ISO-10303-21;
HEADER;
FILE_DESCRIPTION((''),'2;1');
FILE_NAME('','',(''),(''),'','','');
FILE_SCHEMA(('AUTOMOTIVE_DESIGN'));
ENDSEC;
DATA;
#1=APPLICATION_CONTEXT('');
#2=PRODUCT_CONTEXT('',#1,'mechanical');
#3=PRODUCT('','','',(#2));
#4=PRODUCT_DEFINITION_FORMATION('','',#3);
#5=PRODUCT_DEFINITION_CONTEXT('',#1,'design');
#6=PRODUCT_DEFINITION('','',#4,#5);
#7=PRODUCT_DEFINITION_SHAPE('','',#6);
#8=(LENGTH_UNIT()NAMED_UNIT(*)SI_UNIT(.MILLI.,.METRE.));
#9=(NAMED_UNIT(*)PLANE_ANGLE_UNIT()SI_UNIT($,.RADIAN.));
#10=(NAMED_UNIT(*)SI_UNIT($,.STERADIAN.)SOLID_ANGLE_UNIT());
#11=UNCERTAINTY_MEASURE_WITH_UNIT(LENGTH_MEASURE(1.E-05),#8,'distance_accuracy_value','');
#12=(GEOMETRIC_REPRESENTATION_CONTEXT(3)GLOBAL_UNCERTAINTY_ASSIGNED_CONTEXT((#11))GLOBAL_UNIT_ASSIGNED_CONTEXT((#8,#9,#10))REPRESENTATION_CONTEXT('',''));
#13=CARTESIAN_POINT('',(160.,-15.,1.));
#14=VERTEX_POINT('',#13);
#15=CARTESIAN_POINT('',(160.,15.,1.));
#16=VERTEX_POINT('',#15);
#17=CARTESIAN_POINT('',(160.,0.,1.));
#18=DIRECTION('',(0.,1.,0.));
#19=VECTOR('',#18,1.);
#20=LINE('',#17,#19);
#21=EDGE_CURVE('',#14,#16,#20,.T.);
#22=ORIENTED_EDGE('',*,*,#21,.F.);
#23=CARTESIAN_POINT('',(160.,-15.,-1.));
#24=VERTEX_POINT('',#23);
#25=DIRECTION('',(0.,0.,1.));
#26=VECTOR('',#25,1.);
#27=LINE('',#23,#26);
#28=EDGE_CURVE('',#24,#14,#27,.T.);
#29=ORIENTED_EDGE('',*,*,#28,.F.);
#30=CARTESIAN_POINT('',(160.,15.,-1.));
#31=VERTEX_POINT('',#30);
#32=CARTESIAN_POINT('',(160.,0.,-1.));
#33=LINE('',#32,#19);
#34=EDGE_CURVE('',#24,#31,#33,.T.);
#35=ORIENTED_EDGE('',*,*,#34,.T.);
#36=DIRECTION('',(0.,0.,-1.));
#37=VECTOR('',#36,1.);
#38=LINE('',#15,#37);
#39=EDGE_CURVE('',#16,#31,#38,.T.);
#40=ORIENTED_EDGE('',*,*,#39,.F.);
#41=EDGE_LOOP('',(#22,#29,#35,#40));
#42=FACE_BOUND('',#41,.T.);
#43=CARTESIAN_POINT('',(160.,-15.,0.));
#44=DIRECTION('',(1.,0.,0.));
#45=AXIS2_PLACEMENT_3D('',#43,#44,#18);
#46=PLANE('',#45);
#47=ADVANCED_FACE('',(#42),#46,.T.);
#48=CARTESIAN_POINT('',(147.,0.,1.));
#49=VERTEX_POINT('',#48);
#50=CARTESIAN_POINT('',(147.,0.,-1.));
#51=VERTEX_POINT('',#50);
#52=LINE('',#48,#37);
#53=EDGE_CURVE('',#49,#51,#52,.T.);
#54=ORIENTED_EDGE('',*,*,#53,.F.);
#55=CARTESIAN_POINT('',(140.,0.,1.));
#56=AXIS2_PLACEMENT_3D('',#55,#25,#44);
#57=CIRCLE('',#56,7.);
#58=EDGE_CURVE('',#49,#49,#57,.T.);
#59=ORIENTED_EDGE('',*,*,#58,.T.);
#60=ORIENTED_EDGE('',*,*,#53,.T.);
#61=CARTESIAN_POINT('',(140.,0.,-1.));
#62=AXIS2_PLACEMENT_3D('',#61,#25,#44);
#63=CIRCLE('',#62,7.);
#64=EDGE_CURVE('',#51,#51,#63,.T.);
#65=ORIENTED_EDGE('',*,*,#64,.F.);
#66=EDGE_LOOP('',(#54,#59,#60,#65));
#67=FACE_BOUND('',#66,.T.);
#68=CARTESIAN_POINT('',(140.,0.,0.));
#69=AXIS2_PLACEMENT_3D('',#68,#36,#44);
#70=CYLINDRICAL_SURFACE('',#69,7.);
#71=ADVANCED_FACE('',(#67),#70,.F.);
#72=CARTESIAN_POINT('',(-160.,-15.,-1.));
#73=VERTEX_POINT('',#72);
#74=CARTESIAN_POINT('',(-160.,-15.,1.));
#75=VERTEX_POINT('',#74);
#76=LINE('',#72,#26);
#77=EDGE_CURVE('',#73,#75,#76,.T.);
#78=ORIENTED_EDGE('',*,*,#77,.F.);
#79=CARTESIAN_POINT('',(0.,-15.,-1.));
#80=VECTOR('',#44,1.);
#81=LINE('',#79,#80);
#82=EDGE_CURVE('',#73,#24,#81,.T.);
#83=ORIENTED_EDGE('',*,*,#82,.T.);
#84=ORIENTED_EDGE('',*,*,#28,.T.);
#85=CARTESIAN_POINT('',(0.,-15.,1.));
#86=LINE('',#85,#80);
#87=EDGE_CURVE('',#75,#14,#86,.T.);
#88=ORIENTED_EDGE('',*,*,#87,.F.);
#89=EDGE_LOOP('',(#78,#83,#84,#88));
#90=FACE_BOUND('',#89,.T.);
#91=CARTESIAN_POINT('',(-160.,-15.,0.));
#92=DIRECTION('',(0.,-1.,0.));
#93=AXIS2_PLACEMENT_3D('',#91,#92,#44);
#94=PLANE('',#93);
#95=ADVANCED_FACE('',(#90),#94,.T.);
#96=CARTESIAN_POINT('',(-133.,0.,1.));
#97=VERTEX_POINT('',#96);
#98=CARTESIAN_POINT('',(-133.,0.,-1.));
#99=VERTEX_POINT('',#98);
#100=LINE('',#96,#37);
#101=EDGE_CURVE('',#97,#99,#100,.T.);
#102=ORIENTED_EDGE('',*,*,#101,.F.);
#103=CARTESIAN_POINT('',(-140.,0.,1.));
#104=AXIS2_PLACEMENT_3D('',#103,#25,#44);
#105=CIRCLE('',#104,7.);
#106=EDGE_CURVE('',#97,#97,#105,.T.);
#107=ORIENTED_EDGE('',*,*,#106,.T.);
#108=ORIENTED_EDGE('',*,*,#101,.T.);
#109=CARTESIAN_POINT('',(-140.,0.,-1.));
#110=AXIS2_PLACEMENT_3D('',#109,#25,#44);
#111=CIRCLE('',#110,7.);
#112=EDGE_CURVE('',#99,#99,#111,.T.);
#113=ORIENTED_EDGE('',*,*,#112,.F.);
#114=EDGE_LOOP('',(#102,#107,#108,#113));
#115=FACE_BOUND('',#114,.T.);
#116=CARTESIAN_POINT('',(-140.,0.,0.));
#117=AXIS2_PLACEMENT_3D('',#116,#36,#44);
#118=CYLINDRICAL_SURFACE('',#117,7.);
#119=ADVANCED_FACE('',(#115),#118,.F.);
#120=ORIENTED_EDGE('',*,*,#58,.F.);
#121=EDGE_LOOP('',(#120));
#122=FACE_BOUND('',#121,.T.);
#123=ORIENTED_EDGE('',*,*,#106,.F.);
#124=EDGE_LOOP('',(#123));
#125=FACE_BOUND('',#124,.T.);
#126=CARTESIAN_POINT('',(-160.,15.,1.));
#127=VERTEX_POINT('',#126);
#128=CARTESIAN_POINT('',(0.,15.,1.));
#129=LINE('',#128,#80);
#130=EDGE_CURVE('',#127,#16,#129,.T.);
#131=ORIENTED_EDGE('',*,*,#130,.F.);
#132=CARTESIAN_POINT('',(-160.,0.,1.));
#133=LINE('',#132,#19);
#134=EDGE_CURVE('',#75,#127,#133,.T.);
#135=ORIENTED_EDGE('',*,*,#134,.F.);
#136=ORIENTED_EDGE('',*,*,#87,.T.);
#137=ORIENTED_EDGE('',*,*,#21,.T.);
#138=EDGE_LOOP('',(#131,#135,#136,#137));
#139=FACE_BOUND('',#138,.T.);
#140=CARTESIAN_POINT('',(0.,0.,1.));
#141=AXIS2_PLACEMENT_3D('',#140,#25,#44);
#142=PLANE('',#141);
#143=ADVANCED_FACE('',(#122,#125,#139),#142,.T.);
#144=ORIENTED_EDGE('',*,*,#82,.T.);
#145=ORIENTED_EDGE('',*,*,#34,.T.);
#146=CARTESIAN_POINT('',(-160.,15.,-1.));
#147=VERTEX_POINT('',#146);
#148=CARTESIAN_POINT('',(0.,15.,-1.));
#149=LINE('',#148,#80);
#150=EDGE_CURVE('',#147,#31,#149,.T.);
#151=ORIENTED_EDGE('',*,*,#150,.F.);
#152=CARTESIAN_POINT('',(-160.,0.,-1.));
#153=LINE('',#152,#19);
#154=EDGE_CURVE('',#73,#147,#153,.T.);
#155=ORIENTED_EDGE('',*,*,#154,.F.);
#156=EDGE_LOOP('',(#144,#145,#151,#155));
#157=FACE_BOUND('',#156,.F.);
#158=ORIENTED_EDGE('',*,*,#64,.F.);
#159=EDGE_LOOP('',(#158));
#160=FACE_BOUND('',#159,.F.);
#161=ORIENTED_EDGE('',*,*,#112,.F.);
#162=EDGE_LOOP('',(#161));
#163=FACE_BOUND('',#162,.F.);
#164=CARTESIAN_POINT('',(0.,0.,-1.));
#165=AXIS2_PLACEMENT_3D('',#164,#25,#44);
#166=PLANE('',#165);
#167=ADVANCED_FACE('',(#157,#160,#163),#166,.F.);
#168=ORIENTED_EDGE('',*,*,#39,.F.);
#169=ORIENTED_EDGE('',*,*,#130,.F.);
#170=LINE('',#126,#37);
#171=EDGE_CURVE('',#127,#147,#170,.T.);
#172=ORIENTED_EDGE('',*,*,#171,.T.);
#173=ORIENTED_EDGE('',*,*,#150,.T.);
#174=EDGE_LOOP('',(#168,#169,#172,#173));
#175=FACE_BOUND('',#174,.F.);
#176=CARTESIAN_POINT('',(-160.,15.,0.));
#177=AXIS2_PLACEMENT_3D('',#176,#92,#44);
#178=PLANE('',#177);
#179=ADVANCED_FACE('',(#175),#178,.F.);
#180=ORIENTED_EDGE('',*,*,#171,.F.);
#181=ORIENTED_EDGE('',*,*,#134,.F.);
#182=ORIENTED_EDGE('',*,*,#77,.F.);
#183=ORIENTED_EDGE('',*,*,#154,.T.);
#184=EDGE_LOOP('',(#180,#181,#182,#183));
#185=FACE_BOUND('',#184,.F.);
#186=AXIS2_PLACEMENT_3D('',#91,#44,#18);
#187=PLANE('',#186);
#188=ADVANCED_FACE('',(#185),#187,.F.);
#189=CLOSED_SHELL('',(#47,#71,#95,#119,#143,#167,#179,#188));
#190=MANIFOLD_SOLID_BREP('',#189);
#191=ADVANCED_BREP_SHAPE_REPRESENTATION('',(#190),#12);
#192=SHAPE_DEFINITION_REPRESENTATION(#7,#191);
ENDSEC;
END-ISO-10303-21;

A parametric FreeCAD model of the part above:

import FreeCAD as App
import Part
import Sketcher
from FreeCAD import Vector


def add_polygon(sketch, points):
    """Adds a closed chain of lines whose ends are joined by coincident constraints."""
    first, n = sketch.GeometryCount, len(points)
    for a, b in zip(points, points[1:] + points[:1]):
        sketch.addGeometry(Part.LineSegment(App.Vector(*a, 0), App.Vector(*b, 0)), False)
    for i in range(n):
        sketch.addConstraint(Sketcher.Constraint("Coincident", first + i, 2, first + (i + 1) % n, 1))

doc = App.newDocument("Part")
body = doc.addObject("PartDesign::Body", "Body")

# Sketch on XY plane
sketch1 = body.newObject("Sketcher::SketchObject", "Sketch")
sketch1.AttachmentSupport = (doc.getObject("XY_Plane"), [""])
sketch1.MapMode = "FlatFace"
add_polygon(sketch1, [(-160, 15), (-160, -15), (160, -15), (160, 15)])  # lines 0-3
sketch1.addGeometry(Part.Circle(Vector(-140, 0, 0), Vector(0, 0, 1), 7), False)  # 4
sketch1.addGeometry(Part.Circle(Vector(140, 0, 0), Vector(0, 0, 1), 7), False)  # 5
sketch1.addConstraint([
    Sketcher.Constraint("Vertical", 0),
    Sketcher.Constraint("Horizontal", 1),
    Sketcher.Constraint("Vertical", 2),
    Sketcher.Constraint("Horizontal", 3),
    Sketcher.Constraint("Equal", 4, 5),
    Sketcher.Constraint("Symmetric", 4, 3, 5, 3, -1, 1),
    Sketcher.Constraint("Symmetric", 0, 2, 2, 2, -1, 1),
    Sketcher.Constraint("PointOnObject", 4, 3, -1),
    Sketcher.Constraint("Diameter", 4, 14.0),
    Sketcher.Constraint("DistanceX", 1, 1, 1, 2, 320.0),
    Sketcher.Constraint("DistanceY", 0, 2, 0, 1, 30.0),
    Sketcher.Constraint("DistanceX", 4, 3, -1, 1, 140.0),
])
pad1 = body.newObject("PartDesign::Pad", "Pad")
pad1.Profile = sketch1
pad1.Length = 2
pad1.Midplane = True

doc.recompute()
